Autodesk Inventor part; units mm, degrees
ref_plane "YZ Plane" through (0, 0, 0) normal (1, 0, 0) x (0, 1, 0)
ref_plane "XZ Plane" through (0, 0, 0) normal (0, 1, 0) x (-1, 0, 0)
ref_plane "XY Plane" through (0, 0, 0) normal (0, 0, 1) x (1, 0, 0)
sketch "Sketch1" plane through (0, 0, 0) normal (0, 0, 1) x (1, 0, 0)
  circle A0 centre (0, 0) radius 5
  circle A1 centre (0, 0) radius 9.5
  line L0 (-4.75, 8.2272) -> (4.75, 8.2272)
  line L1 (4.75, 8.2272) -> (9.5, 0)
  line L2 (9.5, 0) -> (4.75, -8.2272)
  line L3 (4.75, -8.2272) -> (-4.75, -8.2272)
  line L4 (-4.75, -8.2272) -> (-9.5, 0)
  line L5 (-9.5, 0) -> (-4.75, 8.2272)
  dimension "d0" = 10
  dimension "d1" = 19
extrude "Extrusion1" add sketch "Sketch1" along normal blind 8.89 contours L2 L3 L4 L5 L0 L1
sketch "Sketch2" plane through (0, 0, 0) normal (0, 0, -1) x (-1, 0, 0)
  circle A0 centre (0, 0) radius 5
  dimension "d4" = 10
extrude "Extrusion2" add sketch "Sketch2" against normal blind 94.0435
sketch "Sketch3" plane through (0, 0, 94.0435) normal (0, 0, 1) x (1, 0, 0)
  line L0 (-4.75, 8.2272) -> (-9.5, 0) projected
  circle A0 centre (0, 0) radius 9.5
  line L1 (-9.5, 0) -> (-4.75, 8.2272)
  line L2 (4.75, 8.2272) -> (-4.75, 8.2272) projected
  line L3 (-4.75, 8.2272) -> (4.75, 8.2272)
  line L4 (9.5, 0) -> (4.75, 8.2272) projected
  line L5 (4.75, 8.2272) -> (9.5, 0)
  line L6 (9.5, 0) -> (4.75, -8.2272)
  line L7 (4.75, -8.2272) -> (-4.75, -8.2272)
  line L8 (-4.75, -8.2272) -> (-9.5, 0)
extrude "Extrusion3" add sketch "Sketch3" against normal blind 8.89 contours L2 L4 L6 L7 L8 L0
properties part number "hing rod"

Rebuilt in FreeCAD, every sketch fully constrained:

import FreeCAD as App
import Part
import Sketcher

V = App.Vector
Q = App.Units.Quantity


def add_polygon(sketch, points):
    """Adds a closed chain of lines whose ends are joined by coincident constraints."""
    first, n = sketch.GeometryCount, len(points)
    for a, b in zip(points, points[1:] + points[:1]):
        sketch.addGeometry(Part.LineSegment(App.Vector(*a, 0), App.Vector(*b, 0)), False)
    for i in range(n):
        sketch.addConstraint(Sketcher.Constraint("Coincident", first + i, 2, first + (i + 1) % n, 1))

doc = App.newDocument("Part")
params = doc.addObject("Spreadsheet::Sheet", "Params")
for row, (alias, value) in enumerate([
    ("sketch1_diameter", "10 mm"),
    ("sketch1_width", "9.5 mm"),
    ("pad1_length", "8.89 mm"),
    ("sketch2_diameter", "10 mm"),
    ("pad2_length", "94.0435 mm"),
    ("sketch3_width", "9.5 mm"),
    ("pad3_length", "8.89 mm"),
], start=1):
    params.set(f"A{row}", alias)
    params.set(f"B{row}", "=" + value)
    params.setAlias(f"B{row}", alias)

body = doc.addObject("PartDesign::Body", "Body")

# Sketch on XY plane
sketch1 = body.newObject("Sketcher::SketchObject", "Sketch")
sketch1.AttachmentSupport = (doc.getObject("XY_Plane"), [""])
sketch1.MapMode = "FlatFace"
add_polygon(sketch1, [(5, -8), (10, 0), (5, 8), (-5, 8), (-10, 0), (-5, -8)])  # lines 0-5
sketch1.addGeometry(Part.Circle(V(0, 0, 0), V(0, 0, 1), 5), False)  # 6
sketch1.addConstraint(Sketcher.Constraint("Horizontal", 2))
sketch1.addConstraint(Sketcher.Constraint("Horizontal", 5))
sketch1.addConstraint(Sketcher.Constraint("Coincident", 6, 3, -1, 1))
sketch1.addConstraint(Sketcher.Constraint("Symmetric", 0, 2, 3, 2, -1, 1))
sketch1.addConstraint(Sketcher.Constraint("Symmetric", 1, 2, 4, 2, -1, 1))
sketch1.addConstraint(Sketcher.Constraint("PointOnObject", 0, 2, -1))
sketch1.addConstraint(Sketcher.Constraint("Parallel", 0, 3))
sketch1.addConstraint(Sketcher.Constraint("Vertical", 2, 2, 4, 2))
sketch1.addConstraint(Sketcher.Constraint("Diameter", 6, 10.0))
sketch1.addConstraint(Sketcher.Constraint("DistanceX", 3, 2, 0, 2, 19.0))
sketch1.addConstraint(Sketcher.Constraint("Angle", 0, Q("59.9999 deg")))
sketch1.addConstraint(Sketcher.Constraint("DistanceX", 2, 2, 2, 1, 9.5))
sketch1.setExpression("Constraints[14]", "Params.sketch1_diameter")
sketch1.setExpression("Constraints[17]", "Params.sketch1_width")
pad1 = body.newObject("PartDesign::Pad", "Pad")
pad1.Profile = sketch1
pad1.setExpression("Length", "Params.pad1_length")

# Sketch on XY plane
sketch2 = body.newObject("Sketcher::SketchObject", "Sketch001")
sketch2.AttachmentSupport = (doc.getObject("XY_Plane"), [""])
sketch2.MapMode = "FlatFace"
sketch2.addGeometry(Part.Circle(V(0, 0, 0), V(0, 0, 1), 5), False)
sketch2.addConstraint(Sketcher.Constraint("Coincident", 0, 3, -1, 1))
sketch2.addConstraint(Sketcher.Constraint("Diameter", 0, 10.0))
sketch2.setExpression("Constraints[1]", "Params.sketch2_diameter")
pad2 = body.newObject("PartDesign::Pad", "Pad001")
pad2.Profile = sketch2
pad2.setExpression("Length", "Params.pad2_length")

# Sketch on XY plane
sketch3 = body.newObject("Sketcher::SketchObject", "Sketch002")
sketch3.AttachmentSupport = (doc.getObject("XY_Plane"), [""])
sketch3.MapMode = "FlatFace"
sketch3.AttachmentOffset = App.Placement(V(0, 0, 94.0435), App.Rotation())
add_polygon(sketch3, [(5, 8), (-5, 8), (-10, 0), (-5, -8), (5, -8), (10, 0)])  # lines 0-5
sketch3.addConstraint(Sketcher.Constraint("Horizontal", 0))
sketch3.addConstraint(Sketcher.Constraint("Horizontal", 3))
sketch3.addConstraint(Sketcher.Constraint("Symmetric", 0, 2, 3, 2, -1, 1))
sketch3.addConstraint(Sketcher.Constraint("Symmetric", 1, 2, 4, 2, -1, 1))
sketch3.addConstraint(Sketcher.Constraint("PointOnObject", 1, 2, -1))
sketch3.addConstraint(Sketcher.Constraint("Parallel", 2, 5))
sketch3.addConstraint(Sketcher.Constraint("Vertical", 0, 2, 2, 2))
sketch3.addConstraint(Sketcher.Constraint("Angle", 1, Q("-120.0001 deg")))
sketch3.addConstraint(Sketcher.Constraint("DistanceX", 0, 2, 0, 1, 9.5))
sketch3.addConstraint(Sketcher.Constraint("DistanceX", 1, 2, 4, 2, 19.0))
sketch3.setExpression("Constraints[14]", "Params.sketch3_width")
pad3 = body.newObject("PartDesign::Pad", "Pad002")
pad3.Profile = sketch3
pad3.setExpression("Length", "Params.pad3_length")
pad3.Reversed = True

doc.recompute()
